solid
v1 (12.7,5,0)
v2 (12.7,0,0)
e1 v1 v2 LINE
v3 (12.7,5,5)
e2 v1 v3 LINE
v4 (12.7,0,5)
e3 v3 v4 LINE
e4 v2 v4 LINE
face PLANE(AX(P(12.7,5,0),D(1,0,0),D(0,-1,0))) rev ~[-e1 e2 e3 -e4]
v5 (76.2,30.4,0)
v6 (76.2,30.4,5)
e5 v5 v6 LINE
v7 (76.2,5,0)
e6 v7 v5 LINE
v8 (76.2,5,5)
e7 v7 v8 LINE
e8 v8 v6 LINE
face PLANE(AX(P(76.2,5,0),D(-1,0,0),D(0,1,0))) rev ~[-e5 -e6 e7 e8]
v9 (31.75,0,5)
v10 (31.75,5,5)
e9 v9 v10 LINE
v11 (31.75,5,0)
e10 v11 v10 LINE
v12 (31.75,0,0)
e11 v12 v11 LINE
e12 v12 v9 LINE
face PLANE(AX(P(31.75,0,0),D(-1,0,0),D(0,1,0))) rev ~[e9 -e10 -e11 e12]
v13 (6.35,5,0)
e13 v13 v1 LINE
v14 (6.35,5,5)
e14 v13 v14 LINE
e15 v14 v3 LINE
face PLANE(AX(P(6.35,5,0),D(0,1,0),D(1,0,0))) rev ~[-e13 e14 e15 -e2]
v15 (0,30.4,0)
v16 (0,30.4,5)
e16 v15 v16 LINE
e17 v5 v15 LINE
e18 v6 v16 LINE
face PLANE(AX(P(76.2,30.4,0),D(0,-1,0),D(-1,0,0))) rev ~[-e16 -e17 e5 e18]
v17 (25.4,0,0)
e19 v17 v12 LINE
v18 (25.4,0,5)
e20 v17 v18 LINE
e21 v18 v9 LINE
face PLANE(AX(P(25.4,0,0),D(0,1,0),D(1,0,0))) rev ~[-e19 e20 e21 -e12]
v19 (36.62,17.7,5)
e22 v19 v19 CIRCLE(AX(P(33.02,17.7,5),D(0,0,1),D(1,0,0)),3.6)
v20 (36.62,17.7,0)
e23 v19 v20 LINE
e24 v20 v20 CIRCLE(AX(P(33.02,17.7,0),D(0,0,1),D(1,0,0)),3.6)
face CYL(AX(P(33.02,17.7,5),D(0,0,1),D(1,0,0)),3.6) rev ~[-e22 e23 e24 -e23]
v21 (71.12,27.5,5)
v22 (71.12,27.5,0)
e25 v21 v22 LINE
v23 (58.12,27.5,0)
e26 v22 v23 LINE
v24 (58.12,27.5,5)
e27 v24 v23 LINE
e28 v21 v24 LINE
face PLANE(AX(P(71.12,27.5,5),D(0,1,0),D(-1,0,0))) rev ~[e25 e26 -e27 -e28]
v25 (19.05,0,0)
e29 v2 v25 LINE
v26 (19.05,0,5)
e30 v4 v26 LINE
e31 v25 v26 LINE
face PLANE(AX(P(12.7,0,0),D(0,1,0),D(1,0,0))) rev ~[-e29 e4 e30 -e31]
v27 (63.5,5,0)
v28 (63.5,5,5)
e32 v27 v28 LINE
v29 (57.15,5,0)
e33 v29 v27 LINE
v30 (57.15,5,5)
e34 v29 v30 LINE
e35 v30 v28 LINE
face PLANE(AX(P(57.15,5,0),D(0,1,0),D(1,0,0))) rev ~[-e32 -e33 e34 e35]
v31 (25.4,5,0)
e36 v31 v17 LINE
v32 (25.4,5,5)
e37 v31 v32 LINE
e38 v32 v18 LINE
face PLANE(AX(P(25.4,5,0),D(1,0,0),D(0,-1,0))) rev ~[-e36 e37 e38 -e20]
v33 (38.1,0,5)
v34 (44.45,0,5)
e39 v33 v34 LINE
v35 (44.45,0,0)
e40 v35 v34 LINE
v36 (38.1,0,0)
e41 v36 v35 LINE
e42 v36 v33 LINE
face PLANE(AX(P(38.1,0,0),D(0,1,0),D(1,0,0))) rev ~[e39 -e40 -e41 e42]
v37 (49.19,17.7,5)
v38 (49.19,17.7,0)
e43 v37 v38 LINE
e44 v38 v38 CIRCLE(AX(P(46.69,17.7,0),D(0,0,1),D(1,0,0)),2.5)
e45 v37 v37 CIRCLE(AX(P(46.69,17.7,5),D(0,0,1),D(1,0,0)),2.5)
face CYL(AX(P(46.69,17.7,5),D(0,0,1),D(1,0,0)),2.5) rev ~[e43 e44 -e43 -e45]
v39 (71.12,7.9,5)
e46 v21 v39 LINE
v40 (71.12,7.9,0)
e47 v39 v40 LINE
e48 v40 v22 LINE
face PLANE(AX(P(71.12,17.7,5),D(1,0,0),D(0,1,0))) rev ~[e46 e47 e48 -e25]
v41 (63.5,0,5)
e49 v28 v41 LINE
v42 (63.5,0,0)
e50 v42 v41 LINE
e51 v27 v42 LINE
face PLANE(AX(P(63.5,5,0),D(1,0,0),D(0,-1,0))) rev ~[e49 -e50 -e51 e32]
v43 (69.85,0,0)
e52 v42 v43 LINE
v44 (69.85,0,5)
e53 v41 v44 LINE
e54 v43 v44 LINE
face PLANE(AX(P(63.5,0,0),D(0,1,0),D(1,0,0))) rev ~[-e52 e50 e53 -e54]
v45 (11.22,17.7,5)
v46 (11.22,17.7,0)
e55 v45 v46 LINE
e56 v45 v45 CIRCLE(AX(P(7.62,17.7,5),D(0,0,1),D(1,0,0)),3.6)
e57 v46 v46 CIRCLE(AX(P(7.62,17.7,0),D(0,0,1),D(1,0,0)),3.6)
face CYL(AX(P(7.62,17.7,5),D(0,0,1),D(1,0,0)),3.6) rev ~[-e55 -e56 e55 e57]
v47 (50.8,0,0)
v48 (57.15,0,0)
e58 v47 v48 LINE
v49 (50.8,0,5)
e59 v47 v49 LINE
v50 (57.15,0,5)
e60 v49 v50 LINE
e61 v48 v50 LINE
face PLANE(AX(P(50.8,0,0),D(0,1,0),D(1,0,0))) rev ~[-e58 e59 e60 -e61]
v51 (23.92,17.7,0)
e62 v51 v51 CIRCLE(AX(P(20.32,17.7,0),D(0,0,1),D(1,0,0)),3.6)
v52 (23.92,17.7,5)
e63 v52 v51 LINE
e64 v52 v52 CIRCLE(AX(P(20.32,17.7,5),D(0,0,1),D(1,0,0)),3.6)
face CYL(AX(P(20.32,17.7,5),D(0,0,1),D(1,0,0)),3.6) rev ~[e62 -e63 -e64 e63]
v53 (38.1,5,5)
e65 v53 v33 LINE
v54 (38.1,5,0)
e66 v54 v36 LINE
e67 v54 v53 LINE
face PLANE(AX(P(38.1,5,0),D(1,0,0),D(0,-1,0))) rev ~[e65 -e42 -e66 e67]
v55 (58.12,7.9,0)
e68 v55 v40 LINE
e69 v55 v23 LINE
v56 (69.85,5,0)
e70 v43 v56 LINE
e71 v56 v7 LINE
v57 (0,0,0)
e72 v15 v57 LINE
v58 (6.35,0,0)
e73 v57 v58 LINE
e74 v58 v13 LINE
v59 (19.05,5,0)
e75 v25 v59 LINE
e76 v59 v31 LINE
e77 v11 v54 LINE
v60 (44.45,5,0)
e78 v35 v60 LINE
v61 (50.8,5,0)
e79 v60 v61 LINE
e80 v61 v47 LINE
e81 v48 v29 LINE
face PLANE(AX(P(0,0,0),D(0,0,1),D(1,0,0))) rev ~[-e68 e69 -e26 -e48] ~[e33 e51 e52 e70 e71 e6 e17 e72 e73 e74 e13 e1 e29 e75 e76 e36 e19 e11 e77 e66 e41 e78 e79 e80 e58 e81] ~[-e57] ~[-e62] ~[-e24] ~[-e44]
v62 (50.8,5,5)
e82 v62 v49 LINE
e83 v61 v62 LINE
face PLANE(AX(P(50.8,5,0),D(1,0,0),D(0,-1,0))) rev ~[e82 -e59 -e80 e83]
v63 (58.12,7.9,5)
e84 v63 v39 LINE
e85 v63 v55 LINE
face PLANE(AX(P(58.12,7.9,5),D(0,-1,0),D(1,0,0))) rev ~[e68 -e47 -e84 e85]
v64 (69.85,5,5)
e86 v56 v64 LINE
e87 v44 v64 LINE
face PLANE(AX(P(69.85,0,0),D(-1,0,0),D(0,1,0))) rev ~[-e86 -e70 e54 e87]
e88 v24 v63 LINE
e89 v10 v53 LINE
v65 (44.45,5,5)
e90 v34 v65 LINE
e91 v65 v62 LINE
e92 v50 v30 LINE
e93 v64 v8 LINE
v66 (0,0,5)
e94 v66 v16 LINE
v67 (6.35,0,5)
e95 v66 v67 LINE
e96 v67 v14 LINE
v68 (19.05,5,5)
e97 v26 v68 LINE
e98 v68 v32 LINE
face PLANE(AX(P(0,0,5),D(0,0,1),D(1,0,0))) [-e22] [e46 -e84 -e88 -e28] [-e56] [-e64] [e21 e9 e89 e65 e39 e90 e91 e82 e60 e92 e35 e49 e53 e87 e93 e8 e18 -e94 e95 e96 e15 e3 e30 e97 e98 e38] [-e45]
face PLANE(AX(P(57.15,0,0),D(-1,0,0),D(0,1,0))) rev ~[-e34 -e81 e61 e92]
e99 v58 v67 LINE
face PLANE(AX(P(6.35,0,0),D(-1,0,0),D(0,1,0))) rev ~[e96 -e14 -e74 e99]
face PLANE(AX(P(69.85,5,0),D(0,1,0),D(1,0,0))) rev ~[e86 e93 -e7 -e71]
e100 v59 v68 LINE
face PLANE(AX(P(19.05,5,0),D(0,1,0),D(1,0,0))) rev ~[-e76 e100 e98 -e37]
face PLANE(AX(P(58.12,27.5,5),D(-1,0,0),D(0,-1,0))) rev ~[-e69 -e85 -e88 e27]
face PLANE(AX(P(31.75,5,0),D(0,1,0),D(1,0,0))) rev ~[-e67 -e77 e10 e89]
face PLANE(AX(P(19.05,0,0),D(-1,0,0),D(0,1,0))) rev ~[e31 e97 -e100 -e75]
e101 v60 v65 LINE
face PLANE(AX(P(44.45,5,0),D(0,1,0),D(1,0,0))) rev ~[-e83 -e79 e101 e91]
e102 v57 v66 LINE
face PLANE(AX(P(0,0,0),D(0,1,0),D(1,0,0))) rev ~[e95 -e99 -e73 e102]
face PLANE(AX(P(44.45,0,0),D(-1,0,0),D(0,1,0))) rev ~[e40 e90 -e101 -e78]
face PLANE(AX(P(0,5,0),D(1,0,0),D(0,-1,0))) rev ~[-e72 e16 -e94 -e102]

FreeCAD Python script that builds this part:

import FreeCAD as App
import Part
import Sketcher

doc = App.newDocument("Part")
params = doc.addObject("Spreadsheet::Sheet", "Params")
for row, (alias, value) in enumerate([
    ("sketch1_height", "5 mm"),
    ("sketch1_width", "76.2 mm"),
    ("sketch1_height2", "25.4 mm"),
    ("pad1_length", "5 mm"),
    ("sketch2_width", "13 mm"),
    ("sketch2_height", "19.6 mm"),
    ("pocket1_length", "5 mm"),
    ("sketch3_diameter", "5 mm"),
    ("pocket2_length", "5 mm"),
    ("sketch4_diameter", "7.2 mm"),
    ("pocket3_length", "5 mm"),
], start=1):
    params.set(f"A{row}", alias)
    params.set(f"B{row}", "=" + value)
    params.setAlias(f"B{row}", alias)

body = doc.addObject("PartDesign::Body", "Body")

# Sketch on XY plane
sketch1 = body.newObject("Sketcher::SketchObject", "Sketch")
sketch1.AttachmentSupport = (doc.getObject("XY_Plane"), [""])
sketch1.MapMode = "FlatFace"
sketch1.addGeometry([
    Part.LineSegment(App.Vector(0, 30, 0), App.Vector(0, 0, 0)),  # 0
    Part.LineSegment(App.Vector(0, 0, 0), App.Vector(6, 0, 0)),  # 1
    Part.LineSegment(App.Vector(6, 0, 0), App.Vector(6, 5, 0)),  # 2
    Part.LineSegment(App.Vector(6, 5, 0), App.Vector(13, 5, 0)),  # 3
    Part.LineSegment(App.Vector(13, 5, 0), App.Vector(13, 0, 0)),  # 4
    Part.LineSegment(App.Vector(13, 0, 0), App.Vector(19, 0, 0)),  # 5
    Part.LineSegment(App.Vector(19, 0, 0), App.Vector(19, 5, 0)),  # 6
    Part.LineSegment(App.Vector(19, 5, 0), App.Vector(25, 5, 0)),  # 7
    Part.LineSegment(App.Vector(25, 5, 0), App.Vector(25, 0, 0)),  # 8
    Part.LineSegment(App.Vector(25, 0, 0), App.Vector(32, 0, 0)),  # 9
    Part.LineSegment(App.Vector(32, 0, 0), App.Vector(32, 5, 0)),  # 10
    Part.LineSegment(App.Vector(32, 5, 0), App.Vector(38, 5, 0)),  # 11
    Part.LineSegment(App.Vector(38, 5, 0), App.Vector(38, 0, 0)),  # 12
    Part.LineSegment(App.Vector(38, 0, 0), App.Vector(44, 0, 0)),  # 13
    Part.LineSegment(App.Vector(44, 0, 0), App.Vector(44, 5, 0)),  # 14
    Part.LineSegment(App.Vector(44, 5, 0), App.Vector(51, 5, 0)),  # 15
    Part.LineSegment(App.Vector(51, 5, 0), App.Vector(51, 0, 0)),  # 16
    Part.LineSegment(App.Vector(51, 0, 0), App.Vector(57, 0, 0)),  # 17
    Part.LineSegment(App.Vector(57, 0, 0), App.Vector(57, 5, 0)),  # 18
    Part.LineSegment(App.Vector(57, 5, 0), App.Vector(64, 5, 0)),  # 19
    Part.LineSegment(App.Vector(64, 5, 0), App.Vector(64, 0, 0)),  # 20
    Part.LineSegment(App.Vector(64, 0, 0), App.Vector(70, 0, 0)),  # 21
    Part.LineSegment(App.Vector(70, 0, 0), App.Vector(70, 5, 0)),  # 22
    Part.LineSegment(App.Vector(70, 5, 0), App.Vector(76, 5, 0)),  # 23
    Part.LineSegment(App.Vector(76, 5, 0), App.Vector(76, 30, 0)),  # 24
    Part.LineSegment(App.Vector(76, 30, 0), App.Vector(0, 30, 0)),  # 25
], False)
sketch1.addConstraint([
    Sketcher.Constraint("Coincident", 0, 2, 1, 1),
    Sketcher.Constraint("Coincident", 1, 2, 2, 1),
    Sketcher.Constraint("Coincident", 2, 2, 3, 1),
    Sketcher.Constraint("Coincident", 3, 2, 4, 1),
    Sketcher.Constraint("Coincident", 4, 2, 5, 1),
    Sketcher.Constraint("Coincident", 5, 2, 6, 1),
    Sketcher.Constraint("Coincident", 6, 2, 7, 1),
    Sketcher.Constraint("Coincident", 7, 2, 8, 1),
    Sketcher.Constraint("Coincident", 8, 2, 9, 1),
    Sketcher.Constraint("Coincident", 9, 2, 10, 1),
    Sketcher.Constraint("Coincident", 10, 2, 11, 1),
    Sketcher.Constraint("Coincident", 11, 2, 12, 1),
    Sketcher.Constraint("Coincident", 12, 2, 13, 1),
    Sketcher.Constraint("Coincident", 13, 2, 14, 1),
    Sketcher.Constraint("Coincident", 14, 2, 15, 1),
    Sketcher.Constraint("Coincident", 15, 2, 16, 1),
    Sketcher.Constraint("Coincident", 16, 2, 17, 1),
    Sketcher.Constraint("Coincident", 17, 2, 18, 1),
    Sketcher.Constraint("Coincident", 18, 2, 19, 1),
    Sketcher.Constraint("Coincident", 19, 2, 20, 1),
    Sketcher.Constraint("Coincident", 20, 2, 21, 1),
    Sketcher.Constraint("Coincident", 21, 2, 22, 1),
    Sketcher.Constraint("Coincident", 22, 2, 23, 1),
    Sketcher.Constraint("Coincident", 23, 2, 24, 1),
    Sketcher.Constraint("Coincident", 24, 2, 25, 1),
    Sketcher.Constraint("Coincident", 25, 2, 0, 1),
    Sketcher.Constraint("Vertical", 0),
    Sketcher.Constraint("Horizontal", 1),
    Sketcher.Constraint("Vertical", 2),
    Sketcher.Constraint("Horizontal", 3),
    Sketcher.Constraint("Vertical", 4),
    Sketcher.Constraint("Horizontal", 5),
    Sketcher.Constraint("Vertical", 6),
    Sketcher.Constraint("Horizontal", 7),
    Sketcher.Constraint("Vertical", 8),
    Sketcher.Constraint("Horizontal", 9),
    Sketcher.Constraint("Vertical", 10),
    Sketcher.Constraint("Horizontal", 11),
    Sketcher.Constraint("Vertical", 12),
    Sketcher.Constraint("Horizontal", 13),
    Sketcher.Constraint("Vertical", 14),
    Sketcher.Constraint("Horizontal", 15),
    Sketcher.Constraint("Vertical", 16),
    Sketcher.Constraint("Horizontal", 17),
    Sketcher.Constraint("Vertical", 18),
    Sketcher.Constraint("Horizontal", 19),
    Sketcher.Constraint("Vertical", 20),
    Sketcher.Constraint("Horizontal", 21),
    Sketcher.Constraint("Vertical", 22),
    Sketcher.Constraint("Horizontal", 23),
    Sketcher.Constraint("Vertical", 24),
    Sketcher.Constraint("Horizontal", 25),
    Sketcher.Constraint("Coincident", 0, 2, -1, 1),
    Sketcher.Constraint("PointOnObject", 4, 2, -1),
    Sketcher.Constraint("PointOnObject", 8, 2, -1),
    Sketcher.Constraint("PointOnObject", 12, 2, -1),
    Sketcher.Constraint("PointOnObject", 16, 2, -1),
    Sketcher.Constraint("PointOnObject", 20, 2, -1),
    Sketcher.Constraint("Horizontal", 3, 2, 6, 2),
    Sketcher.Constraint("Horizontal", 7, 2, 10, 2),
    Sketcher.Constraint("Horizontal", 11, 2, 14, 2),
    Sketcher.Constraint("Horizontal", 15, 2, 18, 2),
    Sketcher.Constraint("Horizontal", 19, 2, 22, 2),
    Sketcher.Constraint("Equal", 1, 3),
    Sketcher.Constraint("Equal", 3, 5),
    Sketcher.Constraint("Equal", 5, 7),
    Sketcher.Constraint("Equal", 7, 9),
    Sketcher.Constraint("Equal", 9, 11),
    Sketcher.Constraint("Equal", 11, 13),
    Sketcher.Constraint("Equal", 13, 15),
    Sketcher.Constraint("Equal", 15, 17),
    Sketcher.Constraint("Equal", 17, 19),
    Sketcher.Constraint("Equal", 19, 21),
    Sketcher.Constraint("Equal", 21, 23),
    Sketcher.Constraint("DistanceY", 2, 1, 2, 2, 5.0),
    Sketcher.Constraint("DistanceX", 25, 2, 25, 1, 76.2),
    Sketcher.Constraint("DistanceY", 24, 1, 24, 2, 25.4),
])
sketch1.setExpression("Constraints[74]", "Params.sketch1_height")
sketch1.setExpression("Constraints[75]", "Params.sketch1_width")
sketch1.setExpression("Constraints[76]", "Params.sketch1_height2")
pad1 = body.newObject("PartDesign::Pad", "Pad")
pad1.Profile = sketch1
pad1.setExpression("Length", "Params.pad1_length")

# Sketch on XY plane
sketch2 = body.newObject("Sketcher::SketchObject", "Sketch001")
sketch2.AttachmentSupport = (doc.getObject("XY_Plane"), [""])
sketch2.MapMode = "FlatFace"
sketch2.AttachmentOffset = App.Placement(App.Vector(0, 0, 5), App.Rotation())
sketch2.addGeometry([
    Part.LineSegment(App.Vector(71, 28, 0), App.Vector(58, 28, 0)),
    Part.LineSegment(App.Vector(58, 28, 0), App.Vector(58, 8, 0)),
    Part.LineSegment(App.Vector(58, 8, 0), App.Vector(71, 8, 0)),
    Part.LineSegment(App.Vector(71, 8, 0), App.Vector(71, 28, 0)),
], False)
sketch2.addConstraint([
    Sketcher.Constraint("Coincident", 0, 2, 1, 1),
    Sketcher.Constraint("Coincident", 1, 2, 2, 1),
    Sketcher.Constraint("Coincident", 2, 2, 3, 1),
    Sketcher.Constraint("Coincident", 3, 2, 0, 1),
    Sketcher.Constraint("Horizontal", 0),
    Sketcher.Constraint("Vertical", 1),
    Sketcher.Constraint("Horizontal", 2),
    Sketcher.Constraint("Vertical", 3),
    Sketcher.Constraint("DistanceX", 0, 2, 0, 1, 13.0),
    Sketcher.Constraint("DistanceY", 1, 2, 1, 1, 19.6),
    Sketcher.Constraint("DistanceY", -1, 1, 0, 2, 27.5),
    Sketcher.Constraint("DistanceX", -1, 1, 0, 2, 58.12),
])
sketch2.setExpression("Constraints[8]", "Params.sketch2_width")
sketch2.setExpression("Constraints[9]", "Params.sketch2_height")
pocket1 = body.newObject("PartDesign::Pocket", "Pocket")
pocket1.Profile = sketch2
pocket1.setExpression("Length", "Params.pocket1_length")

# Sketch on XY plane
sketch3 = body.newObject("Sketcher::SketchObject", "Sketch002")
sketch3.AttachmentSupport = (doc.getObject("XY_Plane"), [""])
sketch3.MapMode = "FlatFace"
sketch3.AttachmentOffset = App.Placement(App.Vector(0, 0, 5), App.Rotation())
sketch3.addGeometry(Part.Circle(App.Vector(46.7, 17.7, 0), App.Vector(0, 0, 1), 2.5), False)
sketch3.addConstraint([
    Sketcher.Constraint("Diameter", 0, 5.0),
    Sketcher.Constraint("DistanceY", -1, 1, 0, 3, 17.7),
    Sketcher.Constraint("DistanceX", -1, 1, 0, 3, 46.69),
])
sketch3.setExpression("Constraints[0]", "Params.sketch3_diameter")
pocket2 = body.newObject("PartDesign::Pocket", "Pocket001")
pocket2.Profile = sketch3
pocket2.setExpression("Length", "Params.pocket2_length")

# Sketch on XY plane
sketch4 = body.newObject("Sketcher::SketchObject", "Sketch003")
sketch4.AttachmentSupport = (doc.getObject("XY_Plane"), [""])
sketch4.MapMode = "FlatFace"
sketch4.AttachmentOffset = App.Placement(App.Vector(0, 0, 5), App.Rotation())
sketch4.addGeometry([
    Part.Circle(App.Vector(33, 17.7, 0), App.Vector(0, 0, 1), 3.6),
    Part.Circle(App.Vector(20.3, 17.7, 0), App.Vector(0, 0, 1), 3.6),
    Part.Circle(App.Vector(7.6, 17.7, 0), App.Vector(0, 0, 1), 3.6),
], False)
sketch4.addConstraint([
    Sketcher.Constraint("Equal", 0, 1),
    Sketcher.Constraint("Equal", 1, 2),
    Sketcher.Constraint("Horizontal", 0, 3, 1, 3),
    Sketcher.Constraint("Horizontal", 1, 3, 2, 3),
    Sketcher.Constraint("Diameter", 0, 7.2),
    Sketcher.Constraint("DistanceX", 1, 3, 0, 3, 12.7),
    Sketcher.Constraint("DistanceX", 2, 3, 1, 3, 12.7),
    Sketcher.Constraint("DistanceX", -1, 1, 2, 3, 7.62),
    Sketcher.Constraint("DistanceY", -1, 1, 0, 3, 17.7),
])
sketch4.setExpression("Constraints[4]", "Params.sketch4_diameter")
pocket3 = body.newObject("PartDesign::Pocket", "Pocket002")
pocket3.Profile = sketch4
pocket3.setExpression("Length", "Params.pocket3_length")

doc.recompute()
